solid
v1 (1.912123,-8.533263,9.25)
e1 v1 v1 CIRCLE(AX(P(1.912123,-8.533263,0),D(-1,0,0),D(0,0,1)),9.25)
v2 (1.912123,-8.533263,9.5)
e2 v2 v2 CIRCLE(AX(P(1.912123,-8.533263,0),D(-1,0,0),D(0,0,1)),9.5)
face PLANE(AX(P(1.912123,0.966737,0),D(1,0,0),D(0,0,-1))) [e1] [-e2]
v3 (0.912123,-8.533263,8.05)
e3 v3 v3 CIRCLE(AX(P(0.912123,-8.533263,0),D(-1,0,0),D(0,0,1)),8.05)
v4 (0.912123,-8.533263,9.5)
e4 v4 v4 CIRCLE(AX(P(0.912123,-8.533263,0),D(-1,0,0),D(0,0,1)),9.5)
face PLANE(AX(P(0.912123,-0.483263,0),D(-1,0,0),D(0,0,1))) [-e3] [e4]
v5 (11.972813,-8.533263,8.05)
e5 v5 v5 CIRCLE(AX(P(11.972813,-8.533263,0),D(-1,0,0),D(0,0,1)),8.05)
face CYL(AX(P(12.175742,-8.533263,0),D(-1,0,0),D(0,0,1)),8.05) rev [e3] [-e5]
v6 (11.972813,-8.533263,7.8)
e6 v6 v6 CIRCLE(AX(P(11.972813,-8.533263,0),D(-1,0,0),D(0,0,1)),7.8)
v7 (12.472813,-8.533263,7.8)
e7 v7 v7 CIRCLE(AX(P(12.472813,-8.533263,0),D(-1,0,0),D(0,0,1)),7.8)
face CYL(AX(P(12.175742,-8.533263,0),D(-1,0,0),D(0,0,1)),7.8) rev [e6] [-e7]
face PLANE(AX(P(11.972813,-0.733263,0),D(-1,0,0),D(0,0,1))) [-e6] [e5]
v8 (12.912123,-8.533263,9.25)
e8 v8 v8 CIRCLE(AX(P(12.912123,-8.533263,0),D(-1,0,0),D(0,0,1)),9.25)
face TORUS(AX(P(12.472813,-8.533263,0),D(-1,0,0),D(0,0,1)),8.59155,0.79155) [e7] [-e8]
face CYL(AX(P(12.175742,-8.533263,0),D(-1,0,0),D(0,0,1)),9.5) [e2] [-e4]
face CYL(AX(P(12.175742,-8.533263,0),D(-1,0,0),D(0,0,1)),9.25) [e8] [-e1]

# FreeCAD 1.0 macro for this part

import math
import FreeCAD as App
import Part
import Sketcher
from FreeCAD import Vector

doc = App.newDocument("Part")
body = doc.addObject("PartDesign::Body", "Body")

# Sketch on XY plane
sketch1 = body.newObject("Sketcher::SketchObject", "Sketch")
sketch1.AttachmentSupport = (doc.getObject("XY_Plane"), [""])
sketch1.MapMode = "FlatFace"
sketch1.addGeometry([
    Part.LineSegment(Vector(11.97, -0.73, 0), Vector(11.97, -0.48, 0)),  # 0
    Part.LineSegment(Vector(11.97, -0.48, 0), Vector(0.91, -0.48, 0)),  # 1
    Part.LineSegment(Vector(0.91, -0.48, 0), Vector(0.91, 0.97, 0)),  # 2
    Part.LineSegment(Vector(0.91, 0.97, 0), Vector(1.91, 0.97, 0)),  # 3
    Part.LineSegment(Vector(1.91, 0.97, 0), Vector(1.91, 0.72, 0)),  # 4
    Part.LineSegment(Vector(1.91, 0.72, 0), Vector(12.91, 0.72, 0)),  # 5
    Part.ArcOfCircle(Part.Circle(Vector(12.47, 0.06, 0), Vector(0, 0, 1), 0.79), math.radians(-90), math.radians(56)),  # 6
    Part.LineSegment(Vector(12.47, -0.73, 0), Vector(11.97, -0.73, 0)),  # 7
], False)
sketch1.addGeometry(Part.LineSegment(Vector(12.91, -8.53, 0), Vector(0.91, -8.53, 0)), True)  # axis
sketch1.addConstraint([
    Sketcher.Constraint("Coincident", 0, 2, 1, 1),
    Sketcher.Constraint("Coincident", 1, 2, 2, 1),
    Sketcher.Constraint("Coincident", 2, 2, 3, 1),
    Sketcher.Constraint("Coincident", 3, 2, 4, 1),
    Sketcher.Constraint("Coincident", 4, 2, 5, 1),
    Sketcher.Constraint("Coincident", 5, 2, 6, 2),
    Sketcher.Constraint("Tangent", 6, 1, 7, 1),
    Sketcher.Constraint("Coincident", 7, 2, 0, 1),
    Sketcher.Constraint("Vertical", 0),
    Sketcher.Constraint("Horizontal", 1),
    Sketcher.Constraint("Vertical", 2),
    Sketcher.Constraint("Horizontal", 3),
    Sketcher.Constraint("Vertical", 4),
    Sketcher.Constraint("Horizontal", 5),
    Sketcher.Constraint("Horizontal", 7),
    Sketcher.Constraint("Horizontal", 8),
    Sketcher.Constraint("Vertical", 5, 2, 8, 1),
    Sketcher.Constraint("Vertical", 2, 2, 8, 2),
    Sketcher.Constraint("Equal", 0, 4),
    Sketcher.Constraint("DistanceX", 3, 1, 3, 2, 1.0),
    Sketcher.Constraint("DistanceX", 5, 1, 5, 2, 11.0),
    Sketcher.Constraint("DistanceX", 7, 2, 7, 1, 0.5),
    Sketcher.Constraint("DistanceY", 0, 1, 0, 2, 0.25),
    Sketcher.Constraint("DistanceY", 2, 1, 2, 2, 1.45),
    Sketcher.Constraint("DistanceY", 8, 1, 6, 1, 7.8),
    Sketcher.Constraint("Radius", 6, 0.79155),
    Sketcher.Constraint("DistanceX", -1, 1, 6, 3, 12.472813),
    Sketcher.Constraint("DistanceY", -1, 1, 6, 3, 0.058286),
])
revolution = body.newObject("PartDesign::Revolution", "Revolution")
revolution.Profile = sketch1
revolution.ReferenceAxis = (sketch1, ["Axis0"])
revolution.Angle = 360

doc.recompute()
